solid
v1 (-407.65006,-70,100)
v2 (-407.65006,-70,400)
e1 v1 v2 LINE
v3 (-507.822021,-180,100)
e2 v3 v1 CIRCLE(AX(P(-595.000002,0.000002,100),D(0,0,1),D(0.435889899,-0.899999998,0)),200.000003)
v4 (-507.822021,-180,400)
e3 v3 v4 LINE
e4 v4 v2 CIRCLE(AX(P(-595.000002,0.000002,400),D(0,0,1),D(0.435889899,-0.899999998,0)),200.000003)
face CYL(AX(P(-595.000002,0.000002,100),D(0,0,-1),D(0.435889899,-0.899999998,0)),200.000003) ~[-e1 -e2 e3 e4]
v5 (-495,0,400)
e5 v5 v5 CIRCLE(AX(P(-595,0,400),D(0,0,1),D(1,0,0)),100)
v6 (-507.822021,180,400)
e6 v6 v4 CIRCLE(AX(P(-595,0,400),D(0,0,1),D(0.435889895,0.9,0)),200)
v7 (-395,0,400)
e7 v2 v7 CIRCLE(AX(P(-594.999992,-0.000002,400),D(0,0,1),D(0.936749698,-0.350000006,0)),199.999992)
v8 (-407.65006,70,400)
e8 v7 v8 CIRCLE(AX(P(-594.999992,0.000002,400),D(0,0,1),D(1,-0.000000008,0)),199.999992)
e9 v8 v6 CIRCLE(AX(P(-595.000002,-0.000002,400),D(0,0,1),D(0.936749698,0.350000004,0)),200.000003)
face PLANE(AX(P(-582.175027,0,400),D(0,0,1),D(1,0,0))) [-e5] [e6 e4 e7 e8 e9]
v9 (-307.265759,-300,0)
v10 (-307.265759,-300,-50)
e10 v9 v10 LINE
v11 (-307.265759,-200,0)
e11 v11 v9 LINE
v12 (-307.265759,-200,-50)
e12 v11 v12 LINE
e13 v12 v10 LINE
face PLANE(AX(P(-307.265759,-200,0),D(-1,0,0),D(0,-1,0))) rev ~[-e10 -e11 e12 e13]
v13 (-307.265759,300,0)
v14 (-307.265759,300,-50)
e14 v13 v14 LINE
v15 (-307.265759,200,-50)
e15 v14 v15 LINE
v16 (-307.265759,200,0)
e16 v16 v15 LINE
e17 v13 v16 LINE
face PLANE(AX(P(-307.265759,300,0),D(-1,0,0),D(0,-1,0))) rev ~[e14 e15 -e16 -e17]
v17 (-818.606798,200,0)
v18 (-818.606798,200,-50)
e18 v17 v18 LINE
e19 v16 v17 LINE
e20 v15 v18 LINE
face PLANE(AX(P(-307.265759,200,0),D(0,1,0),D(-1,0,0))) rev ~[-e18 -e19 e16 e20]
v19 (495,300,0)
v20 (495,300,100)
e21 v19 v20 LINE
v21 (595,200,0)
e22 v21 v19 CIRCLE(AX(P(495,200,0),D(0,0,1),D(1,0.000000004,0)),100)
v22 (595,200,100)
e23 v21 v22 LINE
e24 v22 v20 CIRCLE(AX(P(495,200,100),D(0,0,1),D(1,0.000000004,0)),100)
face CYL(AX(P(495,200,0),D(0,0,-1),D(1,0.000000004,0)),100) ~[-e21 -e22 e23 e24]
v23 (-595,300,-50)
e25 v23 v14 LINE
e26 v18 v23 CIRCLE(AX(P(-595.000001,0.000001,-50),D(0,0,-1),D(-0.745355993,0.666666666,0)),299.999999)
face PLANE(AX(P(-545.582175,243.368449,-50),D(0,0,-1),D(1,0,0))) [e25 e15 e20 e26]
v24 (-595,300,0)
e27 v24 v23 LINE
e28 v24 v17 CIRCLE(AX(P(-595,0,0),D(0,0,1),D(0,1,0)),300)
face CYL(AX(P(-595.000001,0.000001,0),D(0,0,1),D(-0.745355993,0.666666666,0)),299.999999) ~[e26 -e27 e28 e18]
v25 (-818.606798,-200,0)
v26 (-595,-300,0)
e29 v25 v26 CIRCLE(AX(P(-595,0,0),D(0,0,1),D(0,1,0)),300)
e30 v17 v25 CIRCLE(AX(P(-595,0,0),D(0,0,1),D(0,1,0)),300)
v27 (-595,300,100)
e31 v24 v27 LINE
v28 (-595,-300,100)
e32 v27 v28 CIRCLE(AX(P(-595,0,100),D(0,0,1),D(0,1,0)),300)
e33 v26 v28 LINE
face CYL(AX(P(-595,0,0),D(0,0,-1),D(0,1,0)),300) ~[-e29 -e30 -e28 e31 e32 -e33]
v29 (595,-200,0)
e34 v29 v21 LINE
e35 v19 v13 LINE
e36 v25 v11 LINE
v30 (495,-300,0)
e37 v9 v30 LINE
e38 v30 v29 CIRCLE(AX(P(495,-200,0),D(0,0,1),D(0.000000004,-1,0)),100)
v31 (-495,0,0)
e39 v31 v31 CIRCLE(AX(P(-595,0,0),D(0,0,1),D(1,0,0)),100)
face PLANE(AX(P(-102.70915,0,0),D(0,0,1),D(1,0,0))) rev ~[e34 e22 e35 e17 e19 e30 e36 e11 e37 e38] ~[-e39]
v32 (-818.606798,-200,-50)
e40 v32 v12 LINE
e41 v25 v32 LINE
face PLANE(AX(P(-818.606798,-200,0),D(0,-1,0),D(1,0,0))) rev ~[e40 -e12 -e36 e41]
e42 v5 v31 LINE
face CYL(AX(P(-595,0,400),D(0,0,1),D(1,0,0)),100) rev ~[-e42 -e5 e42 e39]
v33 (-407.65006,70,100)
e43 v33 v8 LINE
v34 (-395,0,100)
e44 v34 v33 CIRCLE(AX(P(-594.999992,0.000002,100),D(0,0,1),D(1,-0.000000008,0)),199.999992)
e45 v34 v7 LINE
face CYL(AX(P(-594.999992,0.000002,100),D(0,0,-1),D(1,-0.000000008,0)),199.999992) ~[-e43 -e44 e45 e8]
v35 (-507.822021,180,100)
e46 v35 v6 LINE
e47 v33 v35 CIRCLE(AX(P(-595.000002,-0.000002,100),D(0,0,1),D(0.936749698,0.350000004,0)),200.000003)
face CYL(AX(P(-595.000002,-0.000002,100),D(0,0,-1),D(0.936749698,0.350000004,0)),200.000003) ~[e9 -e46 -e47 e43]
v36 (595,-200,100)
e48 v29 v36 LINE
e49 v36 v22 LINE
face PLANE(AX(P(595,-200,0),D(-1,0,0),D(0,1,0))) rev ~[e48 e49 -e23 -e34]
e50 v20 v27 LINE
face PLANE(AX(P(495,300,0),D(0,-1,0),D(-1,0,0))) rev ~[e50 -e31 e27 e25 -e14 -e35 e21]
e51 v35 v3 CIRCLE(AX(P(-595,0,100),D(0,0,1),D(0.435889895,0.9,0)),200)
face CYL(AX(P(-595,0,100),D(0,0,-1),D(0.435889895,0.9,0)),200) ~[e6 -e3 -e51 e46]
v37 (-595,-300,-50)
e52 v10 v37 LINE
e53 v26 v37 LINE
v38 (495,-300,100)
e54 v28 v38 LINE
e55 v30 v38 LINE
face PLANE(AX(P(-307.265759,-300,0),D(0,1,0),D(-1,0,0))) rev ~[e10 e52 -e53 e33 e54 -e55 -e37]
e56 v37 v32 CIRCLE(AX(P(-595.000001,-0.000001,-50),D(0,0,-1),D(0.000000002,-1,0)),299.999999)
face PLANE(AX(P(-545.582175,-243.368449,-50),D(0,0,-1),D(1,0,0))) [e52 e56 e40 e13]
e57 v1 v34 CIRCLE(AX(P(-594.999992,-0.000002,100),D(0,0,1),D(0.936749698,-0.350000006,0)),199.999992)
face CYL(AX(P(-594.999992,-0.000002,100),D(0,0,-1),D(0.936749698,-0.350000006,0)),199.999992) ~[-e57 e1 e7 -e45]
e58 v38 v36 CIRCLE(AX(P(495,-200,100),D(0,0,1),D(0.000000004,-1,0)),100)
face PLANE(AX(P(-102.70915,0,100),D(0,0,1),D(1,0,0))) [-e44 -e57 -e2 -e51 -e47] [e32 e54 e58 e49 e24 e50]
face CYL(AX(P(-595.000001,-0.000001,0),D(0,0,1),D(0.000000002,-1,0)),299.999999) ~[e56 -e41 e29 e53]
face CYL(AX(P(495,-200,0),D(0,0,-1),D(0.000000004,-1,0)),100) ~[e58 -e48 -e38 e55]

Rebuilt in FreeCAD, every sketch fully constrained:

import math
import FreeCAD as App
import Part
import Sketcher
Q = App.Units.Quantity

doc = App.newDocument("Part")
body = doc.addObject("PartDesign::Body", "Body")

# Sketch on XY plane
sketch1 = body.newObject("Sketcher::SketchObject", "Sketch")
sketch1.AttachmentSupport = (doc.getObject("XY_Plane"), [""])
sketch1.MapMode = "FlatFace"
sketch1.addGeometry([
    Part.ArcOfCircle(Part.Circle(App.Vector(-595, 0, 0), App.Vector(0, 0, 1), 300), math.radians(90), math.radians(270)),  # 0
    Part.LineSegment(App.Vector(-595, -300, 0), App.Vector(495, -300, 0)),  # 1
    Part.ArcOfCircle(Part.Circle(App.Vector(495, -200, 0), App.Vector(0, 0, 1), 100), math.radians(-90), math.radians(0)),  # 2
    Part.LineSegment(App.Vector(595, -200, 0), App.Vector(595, 200, 0)),  # 3
    Part.ArcOfCircle(Part.Circle(App.Vector(495, 200, 0), App.Vector(0, 0, 1), 100), math.radians(0), math.radians(90)),  # 4
    Part.LineSegment(App.Vector(495, 300, 0), App.Vector(-595, 300, 0)),  # 5
], False)
sketch1.addConstraint([
    Sketcher.Constraint("Tangent", 0, 2, 1, 1),
    Sketcher.Constraint("Tangent", 1, 2, 2, 1),
    Sketcher.Constraint("Tangent", 2, 2, 3, 1),
    Sketcher.Constraint("Tangent", 3, 2, 4, 1),
    Sketcher.Constraint("Tangent", 4, 2, 5, 1),
    Sketcher.Constraint("Tangent", 5, 2, 0, 1),
    Sketcher.Constraint("Horizontal", 1),
    Sketcher.Constraint("Vertical", 3),
    Sketcher.Constraint("Horizontal", 5),
    Sketcher.Constraint("Equal", 2, 4),
    Sketcher.Constraint("PointOnObject", 0, 3, -1),
    Sketcher.Constraint("Radius", 0, Q("300 mm")),
    Sketcher.Constraint("Radius", 2, Q("100 mm")),
    Sketcher.Constraint("DistanceX", 1, 1, 1, 2, Q("1090 mm")),
    Sketcher.Constraint("DistanceX", 0, 3, -1, 1, Q("595 mm")),
])
pad1 = body.newObject("PartDesign::Pad", "Pad")
pad1.Profile = sketch1
pad1.Length = 100

# Sketch on XY plane
sketch2 = body.newObject("Sketcher::SketchObject", "Sketch001")
sketch2.AttachmentSupport = (doc.getObject("XY_Plane"), [""])
sketch2.MapMode = "FlatFace"
sketch2.addGeometry([
    Part.ArcOfCircle(Part.Circle(App.Vector(-595.000001, -0.000001, 0), App.Vector(0, 0, 1), 299.999999), math.radians(-138.189685), math.radians(-90)),  # 0
    Part.LineSegment(App.Vector(-818.606798, -200, 0), App.Vector(-307.265759, -200, 0)),  # 1
    Part.LineSegment(App.Vector(-307.265759, -200, 0), App.Vector(-307.265759, -300, 0)),  # 2
    Part.LineSegment(App.Vector(-307.265759, -300, 0), App.Vector(-595, -300, 0)),  # 3
    Part.LineSegment(App.Vector(-307.265759, 200, 0), App.Vector(-818.606798, 200, 0)),  # 4
    Part.ArcOfCircle(Part.Circle(App.Vector(-595.000001, 0.000001, 0), App.Vector(0, 0, 1), 299.999999), math.radians(90), math.radians(138.189685)),  # 5
    Part.LineSegment(App.Vector(-595, 300, 0), App.Vector(-307.265759, 300, 0)),  # 6
    Part.LineSegment(App.Vector(-307.265759, 300, 0), App.Vector(-307.265759, 200, 0)),  # 7
], False)
sketch2.addConstraint([
    Sketcher.Constraint("Coincident", 0, 1, 1, 1),
    Sketcher.Constraint("Coincident", 1, 2, 2, 1),
    Sketcher.Constraint("Coincident", 2, 2, 3, 1),
    Sketcher.Constraint("Tangent", 3, 2, 0, 2),
    Sketcher.Constraint("Coincident", 4, 2, 5, 2),
    Sketcher.Constraint("Tangent", 5, 1, 6, 1),
    Sketcher.Constraint("Coincident", 6, 2, 7, 1),
    Sketcher.Constraint("Coincident", 7, 2, 4, 1),
    Sketcher.Constraint("Horizontal", 1),
    Sketcher.Constraint("Vertical", 2),
    Sketcher.Constraint("Horizontal", 3),
    Sketcher.Constraint("Horizontal", 4),
    Sketcher.Constraint("Horizontal", 6),
    Sketcher.Constraint("Vertical", 7),
    Sketcher.Constraint("Coincident", 5, 3, 0, 3),
    Sketcher.Constraint("Equal", 0, 5),
    Sketcher.Constraint("Symmetric", 0, 1, 4, 2, -1),
    Sketcher.Constraint("Vertical", 2, 2, 6, 2),
    Sketcher.Constraint("Radius", 0, Q("299.999999 mm")),
    Sketcher.Constraint("DistanceY", 2, 2, 2, 1, Q("100 mm")),
    Sketcher.Constraint("DistanceX", 0, 3, -1, 1, Q("595.000001 mm")),
    Sketcher.Constraint("DistanceX", 1, 1, 1, 2, Q("511.341039 mm")),
])
pad2 = body.newObject("PartDesign::Pad", "Pad001")
pad2.Profile = sketch2
pad2.Length = 50
pad2.Reversed = True

# Sketch on XY plane
sketch3 = body.newObject("Sketcher::SketchObject", "Sketch002")
sketch3.AttachmentSupport = (doc.getObject("XY_Plane"), [""])
sketch3.MapMode = "FlatFace"
sketch3.AttachmentOffset = App.Placement(App.Vector(0, 0, 100), App.Rotation())
sketch3.addGeometry([
    Part.ArcOfCircle(Part.Circle(App.Vector(-594.999992, -0.000002, 0), App.Vector(0, 0, 1), 199.999992), math.radians(-20.487315), math.radians(0)),  # 0
    Part.ArcOfCircle(Part.Circle(App.Vector(-594.999992, 0.000002, 0), App.Vector(0, 0, 1), 199.999992), math.radians(0), math.radians(20.487315)),  # 1
    Part.ArcOfCircle(Part.Circle(App.Vector(-595.000002, -0.000002, 0), App.Vector(0, 0, 1), 200.000003), math.radians(20.487315), math.radians(64.158067)),  # 2
    Part.ArcOfCircle(Part.Circle(App.Vector(-595, 0, 0), App.Vector(0, 0, 1), 200), math.radians(64.158067), math.radians(295.841933)),  # 3
    Part.ArcOfCircle(Part.Circle(App.Vector(-595.000002, 0.000002, 0), App.Vector(0, 0, 1), 200.000003), math.radians(-64.158067), math.radians(-20.487315)),  # 4
], False)
sketch3.addConstraint([
    Sketcher.Constraint("Tangent", 0, 2, 1, 1),
    Sketcher.Constraint("Tangent", 1, 2, 2, 1),
    Sketcher.Constraint("Tangent", 2, 2, 3, 1),
    Sketcher.Constraint("Tangent", 3, 2, 4, 1),
    Sketcher.Constraint("Tangent", 4, 2, 0, 1),
    Sketcher.Constraint("Coincident", 2, 3, 0, 3),
    Sketcher.Constraint("Symmetric", 2, 2, 3, 2, -1),
    Sketcher.Constraint("PointOnObject", 0, 2, -1),
    Sketcher.Constraint("Vertical", 1, 2, 4, 2),
    Sketcher.Constraint("Radius", 3, Q("200 mm")),
    Sketcher.Constraint("DistanceX", 2, 3, -1, 1, Q("595.000002 mm")),
    Sketcher.Constraint("DistanceY", -1, 1, 1, 2, Q("70 mm")),
    Sketcher.Constraint("DistanceY", -1, 1, 2, 2, Q("180 mm")),
])
pad3 = body.newObject("PartDesign::Pad", "Pad002")
pad3.Profile = sketch3
pad3.Length = 300

# Sketch on XY plane
sketch4 = body.newObject("Sketcher::SketchObject", "Sketch003")
sketch4.AttachmentSupport = (doc.getObject("XY_Plane"), [""])
sketch4.MapMode = "FlatFace"
sketch4.AttachmentOffset = App.Placement(App.Vector(0, 0, 400), App.Rotation())
sketch4.addGeometry(Part.Circle(App.Vector(-595, 0, 0), App.Vector(0, 0, 1), 100), False)
sketch4.addConstraint([
    Sketcher.Constraint("PointOnObject", 0, 3, -1),
    Sketcher.Constraint("Diameter", 0, Q("200 mm")),
    Sketcher.Constraint("DistanceX", 0, 3, -1, 1, Q("595 mm")),
])
pocket1 = body.newObject("PartDesign::Pocket", "Pocket")
pocket1.Profile = sketch4
pocket1.Type = "ThroughAll"

doc.recompute()
